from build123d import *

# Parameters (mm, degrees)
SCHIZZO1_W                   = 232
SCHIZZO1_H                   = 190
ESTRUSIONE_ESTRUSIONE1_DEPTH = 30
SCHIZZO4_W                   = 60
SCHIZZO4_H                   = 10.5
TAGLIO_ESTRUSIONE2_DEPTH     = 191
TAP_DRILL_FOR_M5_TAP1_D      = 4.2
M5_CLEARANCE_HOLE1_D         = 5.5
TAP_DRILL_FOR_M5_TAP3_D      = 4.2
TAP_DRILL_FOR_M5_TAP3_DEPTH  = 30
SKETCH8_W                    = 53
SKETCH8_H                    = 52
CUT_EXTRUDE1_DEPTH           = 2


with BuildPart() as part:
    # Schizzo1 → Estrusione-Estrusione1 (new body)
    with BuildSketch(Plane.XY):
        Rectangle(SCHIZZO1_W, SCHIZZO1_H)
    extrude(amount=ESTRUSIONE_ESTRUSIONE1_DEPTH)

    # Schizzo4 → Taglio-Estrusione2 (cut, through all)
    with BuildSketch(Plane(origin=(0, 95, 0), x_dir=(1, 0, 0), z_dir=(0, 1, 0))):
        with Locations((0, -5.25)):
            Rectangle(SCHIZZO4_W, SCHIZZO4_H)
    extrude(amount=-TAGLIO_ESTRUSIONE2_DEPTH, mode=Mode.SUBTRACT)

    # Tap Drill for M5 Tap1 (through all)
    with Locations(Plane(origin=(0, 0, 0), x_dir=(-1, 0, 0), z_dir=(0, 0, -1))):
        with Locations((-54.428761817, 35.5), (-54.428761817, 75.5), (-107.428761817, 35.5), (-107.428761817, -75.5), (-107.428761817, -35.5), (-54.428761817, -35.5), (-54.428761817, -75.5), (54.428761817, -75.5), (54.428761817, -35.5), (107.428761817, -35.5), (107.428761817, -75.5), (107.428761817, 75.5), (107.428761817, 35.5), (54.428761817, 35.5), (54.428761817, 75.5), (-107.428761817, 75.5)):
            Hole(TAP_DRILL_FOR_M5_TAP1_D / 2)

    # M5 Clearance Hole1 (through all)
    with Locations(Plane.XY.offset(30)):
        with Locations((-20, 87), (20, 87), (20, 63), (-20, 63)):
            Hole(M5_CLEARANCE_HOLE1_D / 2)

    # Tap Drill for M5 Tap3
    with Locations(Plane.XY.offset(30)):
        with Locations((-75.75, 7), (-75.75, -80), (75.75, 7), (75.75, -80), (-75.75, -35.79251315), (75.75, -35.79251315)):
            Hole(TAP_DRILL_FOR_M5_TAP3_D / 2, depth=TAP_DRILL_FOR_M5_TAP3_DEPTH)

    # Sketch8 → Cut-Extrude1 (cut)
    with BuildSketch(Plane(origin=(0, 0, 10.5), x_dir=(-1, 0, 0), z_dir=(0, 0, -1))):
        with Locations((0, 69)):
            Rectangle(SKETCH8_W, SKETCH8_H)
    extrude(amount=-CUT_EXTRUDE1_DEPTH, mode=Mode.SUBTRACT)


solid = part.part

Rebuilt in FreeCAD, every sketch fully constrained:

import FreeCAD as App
import Part
import Sketcher

doc = App.newDocument("Part")
body = doc.addObject("PartDesign::Body", "Body")

# Sketch on XY plane
sketch1 = doc.addObject("Sketcher::SketchObject", "Sketch")
body.addObject(sketch1)
sketch1.AttachmentSupport = (doc.XY_Plane, [""])
sketch1.MapMode = "FlatFace"
sketch1.addGeometry([
    Part.LineSegment(App.Vector(-116, 95, 0), App.Vector(-116, -95, 0)),
    Part.LineSegment(App.Vector(-116, -95, 0), App.Vector(116, -95, 0)),
    Part.LineSegment(App.Vector(116, -95, 0), App.Vector(116, 95, 0)),
    Part.LineSegment(App.Vector(116, 95, 0), App.Vector(-116, 95, 0)),
], False)
sketch1.addConstraint([
    Sketcher.Constraint("Coincident", 0, 2, 1, 1),
    Sketcher.Constraint("Coincident", 1, 2, 2, 1),
    Sketcher.Constraint("Coincident", 2, 2, 3, 1),
    Sketcher.Constraint("Coincident", 3, 2, 0, 1),
    Sketcher.Constraint("Vertical", 0),
    Sketcher.Constraint("Horizontal", 1),
    Sketcher.Constraint("Vertical", 2),
    Sketcher.Constraint("Horizontal", 3),
    Sketcher.Constraint("Symmetric", 0, 2, 2, 2, -1, 1),
    Sketcher.Constraint("DistanceX", 1, 1, 1, 2, 232.0),
    Sketcher.Constraint("DistanceY", 0, 2, 0, 1, 190.0),
])
pad1 = doc.addObject("PartDesign::Pad", "Pad")
body.addObject(pad1)
pad1.Profile = sketch1
pad1.Length = 30

# Sketch on XZ plane
sketch2 = doc.addObject("Sketcher::SketchObject", "Sketch001")
body.addObject(sketch2)
sketch2.AttachmentSupport = (doc.XZ_Plane, [""])
sketch2.MapMode = "FlatFace"
sketch2.AttachmentOffset = App.Placement(App.Vector(0, 0, -95), App.Rotation())
sketch2.addGeometry([
    Part.LineSegment(App.Vector(-30, 0, 0), App.Vector(-30, 10, 0)),
    Part.LineSegment(App.Vector(-30, 10, 0), App.Vector(30, 10, 0)),
    Part.LineSegment(App.Vector(30, 10, 0), App.Vector(30, 0, 0)),
    Part.LineSegment(App.Vector(30, 0, 0), App.Vector(-30, 0, 0)),
], False)
sketch2.addConstraint([
    Sketcher.Constraint("Coincident", 0, 2, 1, 1),
    Sketcher.Constraint("Coincident", 1, 2, 2, 1),
    Sketcher.Constraint("Coincident", 2, 2, 3, 1),
    Sketcher.Constraint("Coincident", 3, 2, 0, 1),
    Sketcher.Constraint("Vertical", 0),
    Sketcher.Constraint("Horizontal", 1),
    Sketcher.Constraint("Vertical", 2),
    Sketcher.Constraint("Horizontal", 3),
    Sketcher.Constraint("Symmetric", 2, 2, 3, 2, -1, 1),
    Sketcher.Constraint("DistanceX", 1, 1, 1, 2, 60.0),
    Sketcher.Constraint("DistanceY", 0, 1, 0, 2, 10.5),
])
pocket1 = doc.addObject("PartDesign::Pocket", "Pocket")
body.addObject(pocket1)
pocket1.Profile = sketch2
pocket1.Type = "ThroughAll"
pocket1.Reversed = True

# Sketch on XY plane
sketch3 = doc.addObject("Sketcher::SketchObject", "Sketch002")
body.addObject(sketch3)
sketch3.AttachmentSupport = (doc.XY_Plane, [""])
sketch3.MapMode = "FlatFace"
sketch3.addGeometry([
    Part.Circle(App.Vector(54.4, 35.5, 0), App.Vector(0, 0, 1), 2.1),  # 0
    Part.Circle(App.Vector(54.4, 75.5, 0), App.Vector(0, 0, 1), 2.1),  # 1
    Part.Circle(App.Vector(107.4, 35.5, 0), App.Vector(0, 0, 1), 2.1),  # 2
    Part.Circle(App.Vector(107.4, -75.5, 0), App.Vector(0, 0, 1), 2.1),  # 3
    Part.Circle(App.Vector(107.4, -35.5, 0), App.Vector(0, 0, 1), 2.1),  # 4
    Part.Circle(App.Vector(54.4, -35.5, 0), App.Vector(0, 0, 1), 2.1),  # 5
    Part.Circle(App.Vector(54.4, -75.5, 0), App.Vector(0, 0, 1), 2.1),  # 6
    Part.Circle(App.Vector(-54.4, -75.5, 0), App.Vector(0, 0, 1), 2.1),  # 7
    Part.Circle(App.Vector(-54.4, -35.5, 0), App.Vector(0, 0, 1), 2.1),  # 8
    Part.Circle(App.Vector(-107.4, -35.5, 0), App.Vector(0, 0, 1), 2.1),  # 9
    Part.Circle(App.Vector(-107.4, -75.5, 0), App.Vector(0, 0, 1), 2.1),  # 10
    Part.Circle(App.Vector(-107.4, 75.5, 0), App.Vector(0, 0, 1), 2.1),  # 11
    Part.Circle(App.Vector(-107.4, 35.5, 0), App.Vector(0, 0, 1), 2.1),  # 12
    Part.Circle(App.Vector(-54.4, 35.5, 0), App.Vector(0, 0, 1), 2.1),  # 13
    Part.Circle(App.Vector(-54.4, 75.5, 0), App.Vector(0, 0, 1), 2.1),  # 14
    Part.Circle(App.Vector(107.4, 75.5, 0), App.Vector(0, 0, 1), 2.1),  # 15
], False)
sketch3.addConstraint([
    Sketcher.Constraint("Equal", 0, 1),
    Sketcher.Constraint("Equal", 1, 2),
    Sketcher.Constraint("Equal", 2, 3),
    Sketcher.Constraint("Equal", 3, 4),
    Sketcher.Constraint("Equal", 4, 5),
    Sketcher.Constraint("Equal", 5, 6),
    Sketcher.Constraint("Equal", 6, 7),
    Sketcher.Constraint("Equal", 7, 8),
    Sketcher.Constraint("Equal", 8, 9),
    Sketcher.Constraint("Equal", 9, 10),
    Sketcher.Constraint("Equal", 10, 11),
    Sketcher.Constraint("Equal", 11, 12),
    Sketcher.Constraint("Equal", 12, 13),
    Sketcher.Constraint("Equal", 13, 14),
    Sketcher.Constraint("Equal", 14, 15),
    Sketcher.Constraint("Symmetric", 1, 3, 7, 3, -1, 1),
    Sketcher.Constraint("Symmetric", 0, 3, 8, 3, -1, 1),
    Sketcher.Constraint("Symmetric", 2, 3, 9, 3, -1, 1),
    Sketcher.Constraint("Symmetric", 3, 3, 11, 3, -1, 1),
    Sketcher.Constraint("Symmetric", 4, 3, 12, 3, -1, 1),
    Sketcher.Constraint("Symmetric", 5, 3, 13, 3, -1, 1),
    Sketcher.Constraint("Symmetric", 6, 3, 14, 3, -1, 1),
    Sketcher.Constraint("Symmetric", 10, 3, 15, 3, -1, 1),
    Sketcher.Constraint("Symmetric", 6, 3, 7, 3, -2),
    Sketcher.Constraint("Symmetric", 5, 3, 8, 3, -2),
    Sketcher.Constraint("Symmetric", 4, 3, 9, 3, -2),
    Sketcher.Constraint("Symmetric", 3, 3, 10, 3, -2),
    Sketcher.Constraint("Horizontal", 0, 3, 2, 3),
    Sketcher.Constraint("Horizontal", 3, 3, 6, 3),
    Sketcher.Constraint("Vertical", 0, 3, 1, 3),
    Sketcher.Constraint("Vertical", 2, 3, 3, 3),
    Sketcher.Constraint("Diameter", 0, 4.2),
    Sketcher.Constraint("DistanceY", 0, 3, 1, 3, 40.0),
    Sketcher.Constraint("DistanceX", 0, 3, 2, 3, 53.0),
    Sketcher.Constraint("DistanceY", 3, 3, 2, 3, 111.0),
    Sketcher.Constraint("DistanceX", -1, 1, 0, 3, 54.428762),
])
doc.recompute()
hole = doc.addObject("PartDesign::Hole", "Hole")
body.addObject(hole)
hole.Profile = sketch3
hole.ThreadType = "None"
hole.Diameter = 4.2
hole.DepthType = "ThroughAll"
hole.Reversed = True

# Sketch on XY plane
sketch4 = doc.addObject("Sketcher::SketchObject", "Sketch003")
body.addObject(sketch4)
sketch4.AttachmentSupport = (doc.XY_Plane, [""])
sketch4.MapMode = "FlatFace"
sketch4.AttachmentOffset = App.Placement(App.Vector(0, 0, 30), App.Rotation())
sketch4.addGeometry([
    Part.Circle(App.Vector(-20, 87, 0), App.Vector(0, 0, 1), 2.8),
    Part.Circle(App.Vector(20, 87, 0), App.Vector(0, 0, 1), 2.8),
    Part.Circle(App.Vector(20, 63, 0), App.Vector(0, 0, 1), 2.8),
    Part.Circle(App.Vector(-20, 63, 0), App.Vector(0, 0, 1), 2.8),
], False)
sketch4.addConstraint([
    Sketcher.Constraint("Equal", 0, 1),
    Sketcher.Constraint("Equal", 1, 2),
    Sketcher.Constraint("Equal", 2, 3),
    Sketcher.Constraint("Symmetric", 0, 3, 1, 3, -2),
    Sketcher.Constraint("Symmetric", 2, 3, 3, 3, -2),
    Sketcher.Constraint("Vertical", 1, 3, 2, 3),
    Sketcher.Constraint("Diameter", 0, 5.5),
    Sketcher.Constraint("DistanceX", 0, 3, -1, 1, 20.0),
    Sketcher.Constraint("DistanceY", -1, 1, 0, 3, 87.0),
    Sketcher.Constraint("DistanceY", -1, 1, 2, 3, 63.0),
])
doc.recompute()
hole2 = doc.addObject("PartDesign::Hole", "Hole001")
body.addObject(hole2)
hole2.Profile = sketch4
hole2.ThreadType = "None"
hole2.Diameter = 5.5
hole2.DepthType = "ThroughAll"

# Sketch on XY plane
sketch5 = doc.addObject("Sketcher::SketchObject", "Sketch004")
body.addObject(sketch5)
sketch5.AttachmentSupport = (doc.XY_Plane, [""])
sketch5.MapMode = "FlatFace"
sketch5.AttachmentOffset = App.Placement(App.Vector(0, 0, 30), App.Rotation())
sketch5.addGeometry([
    Part.Circle(App.Vector(-75.8, 7, 0), App.Vector(0, 0, 1), 2.1),  # 0
    Part.Circle(App.Vector(-75.8, -80, 0), App.Vector(0, 0, 1), 2.1),  # 1
    Part.Circle(App.Vector(75.8, 7, 0), App.Vector(0, 0, 1), 2.1),  # 2
    Part.Circle(App.Vector(75.8, -80, 0), App.Vector(0, 0, 1), 2.1),  # 3
    Part.Circle(App.Vector(-75.8, -35.8, 0), App.Vector(0, 0, 1), 2.1),  # 4
    Part.Circle(App.Vector(75.8, -35.8, 0), App.Vector(0, 0, 1), 2.1),  # 5
], False)
sketch5.addConstraint([
    Sketcher.Constraint("Equal", 0, 1),
    Sketcher.Constraint("Equal", 1, 2),
    Sketcher.Constraint("Equal", 2, 3),
    Sketcher.Constraint("Equal", 3, 4),
    Sketcher.Constraint("Equal", 4, 5),
    Sketcher.Constraint("Symmetric", 0, 3, 2, 3, -2),
    Sketcher.Constraint("Symmetric", 1, 3, 3, 3, -2),
    Sketcher.Constraint("Symmetric", 4, 3, 5, 3, -2),
    Sketcher.Constraint("Vertical", 0, 3, 1, 3),
    Sketcher.Constraint("Vertical", 1, 3, 4, 3),
    Sketcher.Constraint("Diameter", 0, 4.2),
    Sketcher.Constraint("DistanceY", -1, 1, 0, 3, 7.0),
    Sketcher.Constraint("DistanceY", 1, 3, -1, 1, 80.0),
    Sketcher.Constraint("DistanceX", 0, 3, 2, 3, 151.5),
    Sketcher.Constraint("DistanceY", 4, 3, -1, 1, 35.792513),
])
doc.recompute()
hole3 = doc.addObject("PartDesign::Hole", "Hole002")
body.addObject(hole3)
hole3.Profile = sketch5
hole3.ThreadType = "None"
hole3.Diameter = 4.2
hole3.DepthType = "Dimension"
hole3.Depth = 30
hole3.DrillPoint = "Flat"

# Sketch on XY plane
sketch6 = doc.addObject("Sketcher::SketchObject", "Sketch005")
body.addObject(sketch6)
sketch6.AttachmentSupport = (doc.XY_Plane, [""])
sketch6.MapMode = "FlatFace"
sketch6.AttachmentOffset = App.Placement(App.Vector(0, 0, 10.5), App.Rotation())
sketch6.addGeometry([
    Part.LineSegment(App.Vector(26, 95, 0), App.Vector(26, 43, 0)),
    Part.LineSegment(App.Vector(26, 43, 0), App.Vector(-26, 43, 0)),
    Part.LineSegment(App.Vector(-26, 43, 0), App.Vector(-26, 95, 0)),
    Part.LineSegment(App.Vector(-26, 95, 0), App.Vector(26, 95, 0)),
], False)
sketch6.addConstraint([
    Sketcher.Constraint("Coincident", 0, 2, 1, 1),
    Sketcher.Constraint("Coincident", 1, 2, 2, 1),
    Sketcher.Constraint("Coincident", 2, 2, 3, 1),
    Sketcher.Constraint("Coincident", 3, 2, 0, 1),
    Sketcher.Constraint("Vertical", 0),
    Sketcher.Constraint("Horizontal", 1),
    Sketcher.Constraint("Vertical", 2),
    Sketcher.Constraint("Horizontal", 3),
    Sketcher.Constraint("DistanceX", 1, 2, 1, 1, 53.0),
    Sketcher.Constraint("DistanceY", 0, 2, 0, 1, 52.0),
    Sketcher.Constraint("DistanceY", -1, 1, 0, 2, 43.0),
    Sketcher.Constraint("DistanceX", -1, 1, 0, 2, 26.5),
])
pocket2 = doc.addObject("PartDesign::Pocket", "Pocket001")
body.addObject(pocket2)
pocket2.Profile = sketch6
pocket2.Length = 2
pocket2.Reversed = True

doc.recompute()
